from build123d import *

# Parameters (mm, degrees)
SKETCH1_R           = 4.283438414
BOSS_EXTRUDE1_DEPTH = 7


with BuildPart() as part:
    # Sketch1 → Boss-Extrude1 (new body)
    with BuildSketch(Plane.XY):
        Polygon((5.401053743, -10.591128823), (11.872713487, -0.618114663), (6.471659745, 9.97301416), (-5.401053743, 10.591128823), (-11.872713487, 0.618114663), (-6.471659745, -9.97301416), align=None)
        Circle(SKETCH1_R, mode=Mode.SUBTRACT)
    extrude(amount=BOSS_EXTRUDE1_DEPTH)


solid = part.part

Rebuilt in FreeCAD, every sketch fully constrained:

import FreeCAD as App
import Part
import Sketcher

V = App.Vector

doc = App.newDocument("Part")
params = doc.addObject("Spreadsheet::Sheet", "Params")
for row, (alias, value) in enumerate([
    ("pad1_length", "7 mm"),
], start=1):
    params.set(f"A{row}", alias)
    params.set(f"B{row}", "=" + value)
    params.setAlias(f"B{row}", alias)

body = doc.addObject("PartDesign::Body", "Body")

sketch1 = doc.addObject("Sketcher::SketchObject", "Sketch")
body.addObject(sketch1)
sketch1.AttachmentSupport = (doc.XY_Plane, [""])
sketch1.MapMode = "FlatFace"
sketch1.addGeometry([
    Part.LineSegment(V(5.401054, -10.591129, 0), V(11.872713, -0.618115, 0)),
    Part.LineSegment(V(11.872713, -0.618115, 0), V(6.47166, 9.973014, 0)),
    Part.LineSegment(V(6.47166, 9.973014, 0), V(-5.401054, 10.591129, 0)),
    Part.LineSegment(V(-5.401054, 10.591129, 0), V(-11.872713, 0.618115, 0)),
    Part.LineSegment(V(-11.872713, 0.618115, 0), V(-6.47166, -9.973014, 0)),
    Part.LineSegment(V(-6.47166, -9.973014, 0), V(5.401054, -10.591129, 0)),
    Part.Circle(V(0, 0, 0), V(0, 0, 1), 4.283438),
], False)
sketch1.addConstraint([
    Sketcher.Constraint("Coincident", 0, 2, 1, 1),
    Sketcher.Constraint("Coincident", 1, 2, 2, 1),
    Sketcher.Constraint("Coincident", 2, 2, 3, 1),
    Sketcher.Constraint("Coincident", 3, 2, 4, 1),
    Sketcher.Constraint("Coincident", 4, 2, 5, 1),
    Sketcher.Constraint("Coincident", 5, 2, 0, 1),
    Sketcher.Constraint("Coincident", 6, 3, -1, 1),
    Sketcher.Constraint("Symmetric", 0, 2, 3, 2, -1, 1),
    Sketcher.Constraint("Symmetric", 1, 2, 4, 2, -1, 1),
    Sketcher.Constraint("Symmetric", 2, 2, 5, 2, -1, 1),
    Sketcher.Constraint("Equal", 0, 1),
    Sketcher.Constraint("Equal", 1, 2),
    Sketcher.Constraint("Diameter", 6, 8.566877),
    Sketcher.Constraint("DistanceY", 3, 2, 1, 2, 9.354899),
    Sketcher.Constraint("DistanceX", -1, 1, 1, 2, 6.47166),
    Sketcher.Constraint("DistanceY", -1, 1, 2, 2, 10.591129),
    Sketcher.Constraint("DistanceY", 0, 2, 1, 2, 10.591129),
])
pad1 = doc.addObject("PartDesign::Pad", "Pad")
body.addObject(pad1)
pad1.Profile = sketch1
pad1.setExpression("Length", "Params.pad1_length")

doc.recompute()
